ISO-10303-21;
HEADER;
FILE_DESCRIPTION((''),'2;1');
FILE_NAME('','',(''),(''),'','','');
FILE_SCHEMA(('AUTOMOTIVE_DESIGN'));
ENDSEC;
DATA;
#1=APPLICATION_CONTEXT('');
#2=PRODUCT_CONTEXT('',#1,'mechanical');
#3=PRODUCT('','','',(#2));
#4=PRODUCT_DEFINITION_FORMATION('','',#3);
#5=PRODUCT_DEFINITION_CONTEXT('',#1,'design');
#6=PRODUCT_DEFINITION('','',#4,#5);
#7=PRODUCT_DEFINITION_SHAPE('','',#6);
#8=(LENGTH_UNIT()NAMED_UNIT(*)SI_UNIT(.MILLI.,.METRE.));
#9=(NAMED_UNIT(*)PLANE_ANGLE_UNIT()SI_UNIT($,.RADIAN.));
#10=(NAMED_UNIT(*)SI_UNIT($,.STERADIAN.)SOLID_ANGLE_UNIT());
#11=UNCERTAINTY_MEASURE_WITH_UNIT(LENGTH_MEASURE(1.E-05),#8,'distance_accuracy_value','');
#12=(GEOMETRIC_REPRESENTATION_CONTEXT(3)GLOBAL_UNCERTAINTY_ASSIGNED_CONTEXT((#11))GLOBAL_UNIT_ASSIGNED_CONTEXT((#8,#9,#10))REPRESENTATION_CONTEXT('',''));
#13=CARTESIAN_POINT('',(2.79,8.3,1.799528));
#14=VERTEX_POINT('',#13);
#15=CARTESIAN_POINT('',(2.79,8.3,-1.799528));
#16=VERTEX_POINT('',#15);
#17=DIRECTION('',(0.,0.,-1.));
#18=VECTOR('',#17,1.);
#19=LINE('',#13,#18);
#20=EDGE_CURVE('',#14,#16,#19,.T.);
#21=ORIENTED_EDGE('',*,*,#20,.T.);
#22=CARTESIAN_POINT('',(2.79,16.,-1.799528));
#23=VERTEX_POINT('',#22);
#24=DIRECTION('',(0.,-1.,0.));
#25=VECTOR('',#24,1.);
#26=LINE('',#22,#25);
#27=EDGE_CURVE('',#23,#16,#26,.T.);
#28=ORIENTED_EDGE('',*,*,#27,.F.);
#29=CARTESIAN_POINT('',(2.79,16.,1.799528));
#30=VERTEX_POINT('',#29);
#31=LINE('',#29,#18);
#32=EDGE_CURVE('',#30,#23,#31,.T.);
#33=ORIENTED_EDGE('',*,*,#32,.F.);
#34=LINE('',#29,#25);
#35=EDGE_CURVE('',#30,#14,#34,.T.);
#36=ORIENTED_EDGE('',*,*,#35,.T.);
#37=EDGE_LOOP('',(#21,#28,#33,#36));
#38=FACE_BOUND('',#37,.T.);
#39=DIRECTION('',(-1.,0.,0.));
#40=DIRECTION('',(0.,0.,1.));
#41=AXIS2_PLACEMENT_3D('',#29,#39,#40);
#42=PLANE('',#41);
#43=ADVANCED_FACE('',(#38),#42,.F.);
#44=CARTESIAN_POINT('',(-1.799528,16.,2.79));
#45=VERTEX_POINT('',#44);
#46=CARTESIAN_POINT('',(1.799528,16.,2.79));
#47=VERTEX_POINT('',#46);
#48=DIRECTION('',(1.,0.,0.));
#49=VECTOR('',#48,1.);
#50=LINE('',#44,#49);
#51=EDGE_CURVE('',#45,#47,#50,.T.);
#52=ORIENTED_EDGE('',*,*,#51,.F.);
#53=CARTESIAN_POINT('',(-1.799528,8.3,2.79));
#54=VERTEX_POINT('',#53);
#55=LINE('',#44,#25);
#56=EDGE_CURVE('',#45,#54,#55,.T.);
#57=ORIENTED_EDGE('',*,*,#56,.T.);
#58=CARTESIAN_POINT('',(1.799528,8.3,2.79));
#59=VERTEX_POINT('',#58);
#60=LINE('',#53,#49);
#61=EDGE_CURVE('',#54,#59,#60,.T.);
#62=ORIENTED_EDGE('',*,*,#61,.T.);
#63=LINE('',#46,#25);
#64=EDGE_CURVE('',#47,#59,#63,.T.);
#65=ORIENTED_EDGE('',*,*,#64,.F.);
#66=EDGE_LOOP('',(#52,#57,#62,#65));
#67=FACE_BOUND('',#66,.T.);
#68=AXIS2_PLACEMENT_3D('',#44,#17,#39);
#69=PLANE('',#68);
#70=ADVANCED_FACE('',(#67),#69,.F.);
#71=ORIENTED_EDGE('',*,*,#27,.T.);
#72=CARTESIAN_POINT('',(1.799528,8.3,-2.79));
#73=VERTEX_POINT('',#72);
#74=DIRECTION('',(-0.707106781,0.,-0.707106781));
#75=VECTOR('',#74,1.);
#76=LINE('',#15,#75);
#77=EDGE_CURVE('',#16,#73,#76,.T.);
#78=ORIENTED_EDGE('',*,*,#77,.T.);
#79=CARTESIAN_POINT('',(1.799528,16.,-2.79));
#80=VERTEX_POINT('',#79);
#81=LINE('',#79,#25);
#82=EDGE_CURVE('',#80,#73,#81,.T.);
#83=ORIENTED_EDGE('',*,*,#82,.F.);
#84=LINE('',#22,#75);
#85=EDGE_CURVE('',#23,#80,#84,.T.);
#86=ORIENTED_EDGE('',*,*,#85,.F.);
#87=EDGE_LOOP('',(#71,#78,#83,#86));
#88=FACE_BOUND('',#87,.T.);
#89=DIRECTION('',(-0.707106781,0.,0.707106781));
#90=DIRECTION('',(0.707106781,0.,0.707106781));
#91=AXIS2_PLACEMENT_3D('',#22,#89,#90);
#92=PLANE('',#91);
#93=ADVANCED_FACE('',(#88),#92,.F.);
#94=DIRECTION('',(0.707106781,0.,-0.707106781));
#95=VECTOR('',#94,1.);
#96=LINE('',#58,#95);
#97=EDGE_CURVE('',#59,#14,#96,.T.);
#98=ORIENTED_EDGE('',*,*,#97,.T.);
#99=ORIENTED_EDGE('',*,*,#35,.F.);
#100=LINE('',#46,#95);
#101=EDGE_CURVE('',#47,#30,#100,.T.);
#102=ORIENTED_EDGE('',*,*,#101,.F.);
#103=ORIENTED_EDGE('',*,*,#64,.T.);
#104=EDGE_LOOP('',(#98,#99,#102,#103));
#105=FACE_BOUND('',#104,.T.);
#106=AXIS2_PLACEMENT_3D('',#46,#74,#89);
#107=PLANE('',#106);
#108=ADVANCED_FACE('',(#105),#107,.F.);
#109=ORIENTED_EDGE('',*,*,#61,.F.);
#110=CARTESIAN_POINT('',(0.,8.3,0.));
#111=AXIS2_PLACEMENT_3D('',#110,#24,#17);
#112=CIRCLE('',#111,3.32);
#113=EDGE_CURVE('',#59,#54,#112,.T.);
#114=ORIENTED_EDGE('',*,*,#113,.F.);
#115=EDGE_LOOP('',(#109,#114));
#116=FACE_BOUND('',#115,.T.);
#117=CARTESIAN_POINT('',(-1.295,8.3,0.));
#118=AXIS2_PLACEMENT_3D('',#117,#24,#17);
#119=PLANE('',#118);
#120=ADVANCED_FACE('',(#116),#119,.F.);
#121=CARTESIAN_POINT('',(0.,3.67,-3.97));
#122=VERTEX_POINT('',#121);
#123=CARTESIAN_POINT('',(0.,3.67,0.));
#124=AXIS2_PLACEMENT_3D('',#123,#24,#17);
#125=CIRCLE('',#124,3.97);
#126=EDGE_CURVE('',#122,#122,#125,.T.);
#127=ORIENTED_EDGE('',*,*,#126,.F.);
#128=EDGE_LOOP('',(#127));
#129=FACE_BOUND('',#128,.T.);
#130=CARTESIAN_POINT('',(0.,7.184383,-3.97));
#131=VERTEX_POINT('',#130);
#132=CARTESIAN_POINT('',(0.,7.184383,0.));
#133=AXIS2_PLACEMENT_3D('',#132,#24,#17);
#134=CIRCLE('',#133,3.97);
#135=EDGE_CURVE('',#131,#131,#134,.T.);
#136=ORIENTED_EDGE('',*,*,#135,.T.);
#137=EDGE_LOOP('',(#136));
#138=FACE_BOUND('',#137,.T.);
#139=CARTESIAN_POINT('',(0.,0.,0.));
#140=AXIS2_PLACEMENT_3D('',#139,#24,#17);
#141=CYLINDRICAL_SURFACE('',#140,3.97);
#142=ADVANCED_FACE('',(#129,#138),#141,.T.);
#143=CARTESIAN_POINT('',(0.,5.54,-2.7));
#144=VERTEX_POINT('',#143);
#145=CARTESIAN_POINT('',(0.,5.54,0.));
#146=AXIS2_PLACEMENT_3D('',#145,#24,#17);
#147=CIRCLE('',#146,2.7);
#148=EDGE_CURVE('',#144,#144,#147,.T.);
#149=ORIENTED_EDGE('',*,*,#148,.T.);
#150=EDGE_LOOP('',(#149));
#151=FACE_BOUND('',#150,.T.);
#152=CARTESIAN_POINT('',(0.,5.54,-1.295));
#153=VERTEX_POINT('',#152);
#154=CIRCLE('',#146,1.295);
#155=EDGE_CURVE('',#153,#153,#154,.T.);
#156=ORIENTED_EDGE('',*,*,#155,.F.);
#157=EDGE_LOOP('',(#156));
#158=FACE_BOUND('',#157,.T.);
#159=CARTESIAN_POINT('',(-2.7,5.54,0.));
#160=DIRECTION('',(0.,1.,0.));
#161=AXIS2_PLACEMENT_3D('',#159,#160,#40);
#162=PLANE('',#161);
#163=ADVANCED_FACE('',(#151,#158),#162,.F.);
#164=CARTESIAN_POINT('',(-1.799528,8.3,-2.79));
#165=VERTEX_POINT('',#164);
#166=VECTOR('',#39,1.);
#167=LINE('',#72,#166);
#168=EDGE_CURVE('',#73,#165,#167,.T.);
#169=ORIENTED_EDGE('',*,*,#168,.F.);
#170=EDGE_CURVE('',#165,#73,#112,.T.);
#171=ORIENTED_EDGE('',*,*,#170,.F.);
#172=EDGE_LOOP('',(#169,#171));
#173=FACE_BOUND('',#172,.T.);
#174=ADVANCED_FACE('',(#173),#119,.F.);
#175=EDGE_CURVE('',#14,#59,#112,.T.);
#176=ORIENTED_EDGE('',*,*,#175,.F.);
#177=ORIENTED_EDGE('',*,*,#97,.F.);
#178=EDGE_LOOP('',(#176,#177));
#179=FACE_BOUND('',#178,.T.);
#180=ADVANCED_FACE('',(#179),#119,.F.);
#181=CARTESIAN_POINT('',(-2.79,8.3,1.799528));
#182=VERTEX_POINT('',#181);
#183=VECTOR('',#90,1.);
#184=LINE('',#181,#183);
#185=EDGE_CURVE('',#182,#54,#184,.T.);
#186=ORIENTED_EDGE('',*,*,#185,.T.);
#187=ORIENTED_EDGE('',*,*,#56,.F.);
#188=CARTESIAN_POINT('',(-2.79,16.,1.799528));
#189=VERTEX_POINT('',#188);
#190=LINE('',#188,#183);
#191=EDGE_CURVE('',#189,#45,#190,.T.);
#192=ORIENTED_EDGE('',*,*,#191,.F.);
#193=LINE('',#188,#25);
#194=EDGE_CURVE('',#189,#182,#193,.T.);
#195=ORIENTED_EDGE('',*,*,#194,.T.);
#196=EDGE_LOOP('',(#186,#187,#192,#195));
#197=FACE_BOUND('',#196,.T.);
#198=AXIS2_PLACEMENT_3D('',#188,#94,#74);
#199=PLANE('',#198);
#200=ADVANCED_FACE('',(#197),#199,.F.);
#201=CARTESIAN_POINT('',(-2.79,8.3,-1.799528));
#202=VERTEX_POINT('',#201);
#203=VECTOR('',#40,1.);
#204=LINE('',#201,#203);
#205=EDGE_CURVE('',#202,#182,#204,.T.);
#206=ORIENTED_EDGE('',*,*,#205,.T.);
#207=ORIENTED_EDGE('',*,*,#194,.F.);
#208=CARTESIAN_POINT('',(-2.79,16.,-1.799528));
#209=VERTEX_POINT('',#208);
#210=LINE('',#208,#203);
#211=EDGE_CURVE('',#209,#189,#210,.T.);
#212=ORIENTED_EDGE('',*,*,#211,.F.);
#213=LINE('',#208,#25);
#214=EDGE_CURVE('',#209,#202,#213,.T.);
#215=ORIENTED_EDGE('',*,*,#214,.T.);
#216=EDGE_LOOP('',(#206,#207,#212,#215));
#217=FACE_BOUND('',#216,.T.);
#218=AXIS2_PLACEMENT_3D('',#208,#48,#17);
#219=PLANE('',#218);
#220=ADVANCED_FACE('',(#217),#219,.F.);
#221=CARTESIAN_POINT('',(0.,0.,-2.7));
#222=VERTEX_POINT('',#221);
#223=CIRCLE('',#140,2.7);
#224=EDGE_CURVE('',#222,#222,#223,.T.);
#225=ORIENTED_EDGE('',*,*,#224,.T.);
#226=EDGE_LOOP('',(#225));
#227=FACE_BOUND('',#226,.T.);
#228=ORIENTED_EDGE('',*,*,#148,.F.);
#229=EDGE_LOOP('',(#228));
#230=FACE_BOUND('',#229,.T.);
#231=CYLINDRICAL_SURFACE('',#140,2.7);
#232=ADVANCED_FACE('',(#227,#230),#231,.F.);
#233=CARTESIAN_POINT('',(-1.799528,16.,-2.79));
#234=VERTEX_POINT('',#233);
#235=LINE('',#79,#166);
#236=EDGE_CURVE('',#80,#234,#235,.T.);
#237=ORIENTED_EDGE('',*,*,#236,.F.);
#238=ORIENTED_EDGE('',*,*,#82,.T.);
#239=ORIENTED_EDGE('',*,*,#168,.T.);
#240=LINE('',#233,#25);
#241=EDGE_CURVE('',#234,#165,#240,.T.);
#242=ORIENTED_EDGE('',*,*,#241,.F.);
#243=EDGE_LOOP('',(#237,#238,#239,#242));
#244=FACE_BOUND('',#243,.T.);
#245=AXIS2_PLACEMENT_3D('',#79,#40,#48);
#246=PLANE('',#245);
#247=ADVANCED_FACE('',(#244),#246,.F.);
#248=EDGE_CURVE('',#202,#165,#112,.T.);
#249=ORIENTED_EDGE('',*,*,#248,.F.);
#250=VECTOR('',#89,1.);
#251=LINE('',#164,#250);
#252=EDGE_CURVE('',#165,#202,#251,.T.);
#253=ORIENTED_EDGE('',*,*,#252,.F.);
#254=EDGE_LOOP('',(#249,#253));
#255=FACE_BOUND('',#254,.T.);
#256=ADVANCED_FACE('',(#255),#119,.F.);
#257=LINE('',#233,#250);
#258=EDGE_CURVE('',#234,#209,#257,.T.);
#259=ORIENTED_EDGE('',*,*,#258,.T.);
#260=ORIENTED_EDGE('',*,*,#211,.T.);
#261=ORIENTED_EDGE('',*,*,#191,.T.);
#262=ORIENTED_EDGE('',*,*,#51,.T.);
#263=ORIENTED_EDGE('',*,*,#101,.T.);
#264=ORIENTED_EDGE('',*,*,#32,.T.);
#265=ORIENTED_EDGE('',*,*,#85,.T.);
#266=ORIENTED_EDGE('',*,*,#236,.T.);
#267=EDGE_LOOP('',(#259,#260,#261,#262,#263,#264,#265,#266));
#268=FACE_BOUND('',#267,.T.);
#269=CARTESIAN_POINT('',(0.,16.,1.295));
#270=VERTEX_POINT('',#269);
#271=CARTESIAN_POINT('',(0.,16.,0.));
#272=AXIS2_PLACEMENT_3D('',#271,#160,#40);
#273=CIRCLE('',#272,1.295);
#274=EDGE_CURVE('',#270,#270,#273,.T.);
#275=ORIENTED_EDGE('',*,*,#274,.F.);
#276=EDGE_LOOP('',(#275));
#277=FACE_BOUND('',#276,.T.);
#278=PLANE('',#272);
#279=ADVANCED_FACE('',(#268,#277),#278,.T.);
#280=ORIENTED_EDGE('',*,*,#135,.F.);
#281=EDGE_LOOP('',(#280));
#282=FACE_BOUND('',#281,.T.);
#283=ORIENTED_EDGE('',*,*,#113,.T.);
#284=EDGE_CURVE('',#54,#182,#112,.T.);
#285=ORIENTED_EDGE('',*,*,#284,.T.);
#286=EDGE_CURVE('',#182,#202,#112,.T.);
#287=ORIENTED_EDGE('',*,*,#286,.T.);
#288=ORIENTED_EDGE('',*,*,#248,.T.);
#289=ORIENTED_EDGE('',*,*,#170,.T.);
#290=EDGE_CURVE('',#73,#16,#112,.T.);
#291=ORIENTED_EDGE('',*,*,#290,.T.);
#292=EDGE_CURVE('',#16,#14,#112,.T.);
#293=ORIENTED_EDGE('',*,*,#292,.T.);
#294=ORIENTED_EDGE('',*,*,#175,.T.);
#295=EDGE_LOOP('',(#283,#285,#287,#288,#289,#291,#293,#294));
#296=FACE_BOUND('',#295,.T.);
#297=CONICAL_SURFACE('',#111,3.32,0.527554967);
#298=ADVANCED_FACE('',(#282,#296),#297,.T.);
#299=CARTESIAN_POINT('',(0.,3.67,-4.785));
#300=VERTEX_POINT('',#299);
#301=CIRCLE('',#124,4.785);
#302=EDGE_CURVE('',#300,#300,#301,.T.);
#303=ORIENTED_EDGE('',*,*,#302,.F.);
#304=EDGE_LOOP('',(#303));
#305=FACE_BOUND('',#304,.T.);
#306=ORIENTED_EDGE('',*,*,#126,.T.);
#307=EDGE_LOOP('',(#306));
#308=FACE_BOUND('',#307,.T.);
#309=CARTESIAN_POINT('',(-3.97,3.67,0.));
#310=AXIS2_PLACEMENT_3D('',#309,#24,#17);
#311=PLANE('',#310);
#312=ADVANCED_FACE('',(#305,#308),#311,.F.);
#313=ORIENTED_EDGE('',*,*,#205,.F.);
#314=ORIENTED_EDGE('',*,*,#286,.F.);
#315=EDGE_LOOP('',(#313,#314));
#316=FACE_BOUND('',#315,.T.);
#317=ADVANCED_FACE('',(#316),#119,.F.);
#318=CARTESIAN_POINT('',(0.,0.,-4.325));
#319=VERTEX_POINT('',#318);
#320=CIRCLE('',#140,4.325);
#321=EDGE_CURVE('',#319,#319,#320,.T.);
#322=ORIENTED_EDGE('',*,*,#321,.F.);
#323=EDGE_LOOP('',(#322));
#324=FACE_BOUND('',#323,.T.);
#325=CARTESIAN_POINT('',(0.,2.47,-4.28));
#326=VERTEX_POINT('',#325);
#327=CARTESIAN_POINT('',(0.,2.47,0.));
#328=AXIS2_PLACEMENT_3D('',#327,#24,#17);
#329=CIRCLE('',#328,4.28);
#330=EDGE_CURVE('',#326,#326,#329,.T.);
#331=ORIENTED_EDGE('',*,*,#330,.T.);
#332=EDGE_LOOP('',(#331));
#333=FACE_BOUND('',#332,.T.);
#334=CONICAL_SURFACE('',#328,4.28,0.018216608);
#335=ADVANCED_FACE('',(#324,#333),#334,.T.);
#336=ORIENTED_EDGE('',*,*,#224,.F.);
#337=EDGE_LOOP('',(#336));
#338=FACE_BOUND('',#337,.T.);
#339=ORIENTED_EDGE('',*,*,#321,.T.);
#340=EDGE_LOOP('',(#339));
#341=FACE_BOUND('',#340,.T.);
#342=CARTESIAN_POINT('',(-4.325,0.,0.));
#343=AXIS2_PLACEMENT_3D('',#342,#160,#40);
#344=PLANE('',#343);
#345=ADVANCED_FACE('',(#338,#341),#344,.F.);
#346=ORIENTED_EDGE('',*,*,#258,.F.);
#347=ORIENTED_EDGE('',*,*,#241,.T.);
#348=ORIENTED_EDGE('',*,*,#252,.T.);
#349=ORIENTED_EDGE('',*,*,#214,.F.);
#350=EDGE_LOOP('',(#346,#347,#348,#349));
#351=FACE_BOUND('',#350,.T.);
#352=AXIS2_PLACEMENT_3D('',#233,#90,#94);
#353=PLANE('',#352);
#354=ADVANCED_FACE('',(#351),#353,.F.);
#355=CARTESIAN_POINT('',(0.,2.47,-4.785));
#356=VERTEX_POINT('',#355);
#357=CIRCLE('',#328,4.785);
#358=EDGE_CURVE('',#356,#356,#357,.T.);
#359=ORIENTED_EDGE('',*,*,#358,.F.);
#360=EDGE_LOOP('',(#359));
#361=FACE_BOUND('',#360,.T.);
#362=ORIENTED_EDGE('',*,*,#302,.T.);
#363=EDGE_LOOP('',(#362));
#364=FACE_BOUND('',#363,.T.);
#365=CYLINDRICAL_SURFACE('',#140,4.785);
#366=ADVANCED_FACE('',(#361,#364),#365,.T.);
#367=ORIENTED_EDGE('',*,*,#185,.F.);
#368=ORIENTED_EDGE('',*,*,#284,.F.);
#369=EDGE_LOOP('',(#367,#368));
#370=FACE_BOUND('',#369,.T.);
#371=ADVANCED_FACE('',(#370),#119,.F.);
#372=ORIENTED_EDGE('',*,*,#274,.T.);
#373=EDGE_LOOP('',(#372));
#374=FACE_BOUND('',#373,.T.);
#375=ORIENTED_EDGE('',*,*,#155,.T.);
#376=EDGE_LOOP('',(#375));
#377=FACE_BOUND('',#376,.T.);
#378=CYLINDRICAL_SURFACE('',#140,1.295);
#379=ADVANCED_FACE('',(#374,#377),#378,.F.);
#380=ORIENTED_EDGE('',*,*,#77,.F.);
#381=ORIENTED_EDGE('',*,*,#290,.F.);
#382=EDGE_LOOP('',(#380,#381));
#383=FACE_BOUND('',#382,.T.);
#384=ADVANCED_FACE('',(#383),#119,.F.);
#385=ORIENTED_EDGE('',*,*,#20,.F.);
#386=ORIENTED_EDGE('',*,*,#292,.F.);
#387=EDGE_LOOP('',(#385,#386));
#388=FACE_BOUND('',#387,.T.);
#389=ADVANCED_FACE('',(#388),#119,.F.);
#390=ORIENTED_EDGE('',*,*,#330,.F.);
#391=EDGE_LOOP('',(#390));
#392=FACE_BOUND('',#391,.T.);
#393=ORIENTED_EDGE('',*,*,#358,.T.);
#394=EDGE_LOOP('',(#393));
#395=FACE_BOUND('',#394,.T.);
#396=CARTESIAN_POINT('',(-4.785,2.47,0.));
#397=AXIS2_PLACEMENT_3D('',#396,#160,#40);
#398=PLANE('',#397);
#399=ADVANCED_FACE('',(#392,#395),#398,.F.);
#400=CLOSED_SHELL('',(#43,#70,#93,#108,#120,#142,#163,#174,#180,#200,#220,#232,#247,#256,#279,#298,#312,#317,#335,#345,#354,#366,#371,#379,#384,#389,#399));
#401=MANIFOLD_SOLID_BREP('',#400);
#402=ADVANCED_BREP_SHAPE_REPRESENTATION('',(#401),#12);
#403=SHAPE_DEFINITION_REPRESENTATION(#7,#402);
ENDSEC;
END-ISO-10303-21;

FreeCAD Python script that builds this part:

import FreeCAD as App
import Part
import Sketcher
Q = App.Units.Quantity


def add_polygon(sketch, points):
    """Adds a closed chain of lines whose ends are joined by coincident constraints."""
    first, n = sketch.GeometryCount, len(points)
    for a, b in zip(points, points[1:] + points[:1]):
        sketch.addGeometry(Part.LineSegment(App.Vector(*a, 0), App.Vector(*b, 0)), False)
    for i in range(n):
        sketch.addConstraint(Sketcher.Constraint("Coincident", first + i, 2, first + (i + 1) % n, 1))

doc = App.newDocument("Part")
body = doc.addObject("PartDesign::Body", "Body")

# Sketch on XY plane
sketch1 = body.newObject("Sketcher::SketchObject", "Sketch")
sketch1.AttachmentSupport = (doc.getObject("XY_Plane"), [""])
sketch1.MapMode = "FlatFace"
add_polygon(sketch1, [(-2.7, 0), (-2.7, 5.5), (-1.3, 5.5), (-1.3, 8.3), (-3.3, 8.3), (-4, 7.2), (-4, 3.7), (-4.8, 3.7), (-4.8, 2.5), (-4.3, 2.5), (-4.3, 0)])  # lines 0-10
sketch1.addConstraint(Sketcher.Constraint("Vertical", 0))
sketch1.addConstraint(Sketcher.Constraint("Horizontal", 1))
sketch1.addConstraint(Sketcher.Constraint("Vertical", 2))
sketch1.addConstraint(Sketcher.Constraint("Horizontal", 3))
sketch1.addConstraint(Sketcher.Constraint("Vertical", 5))
sketch1.addConstraint(Sketcher.Constraint("Horizontal", 6))
sketch1.addConstraint(Sketcher.Constraint("Vertical", 7))
sketch1.addConstraint(Sketcher.Constraint("Horizontal", 8))
sketch1.addConstraint(Sketcher.Constraint("Horizontal", 10))
sketch1.addConstraint(Sketcher.Constraint("PointOnObject", 9, 2, -1))
sketch1.addConstraint(Sketcher.Constraint("DistanceY", 7, 2, 7, 1, Q("1.2 mm")))
sketch1.addConstraint(Sketcher.Constraint("DistanceY", 0, 1, 0, 2, Q("5.54 mm")))
sketch1.addConstraint(Sketcher.Constraint("DistanceY", 2, 1, 2, 2, Q("2.76 mm")))
sketch1.addConstraint(Sketcher.Constraint("DistanceX", 0, 2, -1, 1, Q("2.7 mm")))
sketch1.addConstraint(Sketcher.Constraint("DistanceX", 1, 1, 1, 2, Q("1.405 mm")))
sketch1.addConstraint(Sketcher.Constraint("DistanceX", 3, 2, 3, 1, Q("2.025 mm")))
sketch1.addConstraint(Sketcher.Constraint("DistanceX", 6, 2, 6, 1, Q("0.815 mm")))
sketch1.addConstraint(Sketcher.Constraint("DistanceX", 8, 1, 8, 2, Q("0.505 mm")))
sketch1.addConstraint(Sketcher.Constraint("DistanceX", 10, 1, 10, 2, Q("1.625 mm")))
sketch1.addConstraint(Sketcher.Constraint("DistanceX", 4, 2, -1, 1, Q("3.97 mm")))
sketch1.addConstraint(Sketcher.Constraint("DistanceY", -1, 1, 5, 2, Q("3.67 mm")))
sketch1.addConstraint(Sketcher.Constraint("DistanceY", 5, 2, 5, 1, Q("3.514383 mm")))
revolution = body.newObject("PartDesign::Revolution", "Revolution")
revolution.Profile = sketch1
revolution.ReferenceAxis = (sketch1, ["V_Axis"])
revolution.Angle = 360

# Sketch on XZ plane
sketch2 = body.newObject("Sketcher::SketchObject", "Sketch001")
sketch2.AttachmentSupport = (doc.getObject("XZ_Plane"), [""])
sketch2.MapMode = "FlatFace"
sketch2.AttachmentOffset = App.Placement(App.Vector(0, 0, -16), App.Rotation())
add_polygon(sketch2, [(1.8, -2.8), (-1.8, -2.8), (-2.8, -1.8), (-2.8, 1.8), (-1.8, 2.8), (1.8, 2.8), (2.8, 1.8), (2.8, -1.8)])  # lines 0-7
sketch2.addGeometry(Part.Circle(App.Vector(0, 0, 0), App.Vector(0, 0, 1), 1.3), False)  # 8
sketch2.addConstraint(Sketcher.Constraint("Horizontal", 0))
sketch2.addConstraint(Sketcher.Constraint("Vertical", 2))
sketch2.addConstraint(Sketcher.Constraint("Horizontal", 4))
sketch2.addConstraint(Sketcher.Constraint("Vertical", 6))
sketch2.addConstraint(Sketcher.Constraint("Coincident", 8, 3, -1, 1))
sketch2.addConstraint(Sketcher.Constraint("Symmetric", 0, 2, 4, 2, -1, 1))
sketch2.addConstraint(Sketcher.Constraint("Symmetric", 1, 2, 5, 2, -1, 1))
sketch2.addConstraint(Sketcher.Constraint("Perpendicular", 1, 3))
sketch2.addConstraint(Sketcher.Constraint("Perpendicular", 5, 7))
sketch2.addConstraint(Sketcher.Constraint("Horizontal", 2, 2, 5, 2))
sketch2.addConstraint(Sketcher.Constraint("Horizontal", 1, 2, 6, 2))
sketch2.addConstraint(Sketcher.Constraint("Vertical", 0, 2, 3, 2))
sketch2.addConstraint(Sketcher.Constraint("Equal", 4, 2))
sketch2.addConstraint(Sketcher.Constraint("Diameter", 8, Q("2.59 mm")))
sketch2.addConstraint(Sketcher.Constraint("DistanceY", 0, 2, -1, 1, Q("2.79 mm")))
sketch2.addConstraint(Sketcher.Constraint("Distance", 1, Q("1.400739 mm")))
pad1 = body.newObject("PartDesign::Pad", "Pad")
pad1.Profile = sketch2
pad1.Length = 7.7

doc.recompute()
